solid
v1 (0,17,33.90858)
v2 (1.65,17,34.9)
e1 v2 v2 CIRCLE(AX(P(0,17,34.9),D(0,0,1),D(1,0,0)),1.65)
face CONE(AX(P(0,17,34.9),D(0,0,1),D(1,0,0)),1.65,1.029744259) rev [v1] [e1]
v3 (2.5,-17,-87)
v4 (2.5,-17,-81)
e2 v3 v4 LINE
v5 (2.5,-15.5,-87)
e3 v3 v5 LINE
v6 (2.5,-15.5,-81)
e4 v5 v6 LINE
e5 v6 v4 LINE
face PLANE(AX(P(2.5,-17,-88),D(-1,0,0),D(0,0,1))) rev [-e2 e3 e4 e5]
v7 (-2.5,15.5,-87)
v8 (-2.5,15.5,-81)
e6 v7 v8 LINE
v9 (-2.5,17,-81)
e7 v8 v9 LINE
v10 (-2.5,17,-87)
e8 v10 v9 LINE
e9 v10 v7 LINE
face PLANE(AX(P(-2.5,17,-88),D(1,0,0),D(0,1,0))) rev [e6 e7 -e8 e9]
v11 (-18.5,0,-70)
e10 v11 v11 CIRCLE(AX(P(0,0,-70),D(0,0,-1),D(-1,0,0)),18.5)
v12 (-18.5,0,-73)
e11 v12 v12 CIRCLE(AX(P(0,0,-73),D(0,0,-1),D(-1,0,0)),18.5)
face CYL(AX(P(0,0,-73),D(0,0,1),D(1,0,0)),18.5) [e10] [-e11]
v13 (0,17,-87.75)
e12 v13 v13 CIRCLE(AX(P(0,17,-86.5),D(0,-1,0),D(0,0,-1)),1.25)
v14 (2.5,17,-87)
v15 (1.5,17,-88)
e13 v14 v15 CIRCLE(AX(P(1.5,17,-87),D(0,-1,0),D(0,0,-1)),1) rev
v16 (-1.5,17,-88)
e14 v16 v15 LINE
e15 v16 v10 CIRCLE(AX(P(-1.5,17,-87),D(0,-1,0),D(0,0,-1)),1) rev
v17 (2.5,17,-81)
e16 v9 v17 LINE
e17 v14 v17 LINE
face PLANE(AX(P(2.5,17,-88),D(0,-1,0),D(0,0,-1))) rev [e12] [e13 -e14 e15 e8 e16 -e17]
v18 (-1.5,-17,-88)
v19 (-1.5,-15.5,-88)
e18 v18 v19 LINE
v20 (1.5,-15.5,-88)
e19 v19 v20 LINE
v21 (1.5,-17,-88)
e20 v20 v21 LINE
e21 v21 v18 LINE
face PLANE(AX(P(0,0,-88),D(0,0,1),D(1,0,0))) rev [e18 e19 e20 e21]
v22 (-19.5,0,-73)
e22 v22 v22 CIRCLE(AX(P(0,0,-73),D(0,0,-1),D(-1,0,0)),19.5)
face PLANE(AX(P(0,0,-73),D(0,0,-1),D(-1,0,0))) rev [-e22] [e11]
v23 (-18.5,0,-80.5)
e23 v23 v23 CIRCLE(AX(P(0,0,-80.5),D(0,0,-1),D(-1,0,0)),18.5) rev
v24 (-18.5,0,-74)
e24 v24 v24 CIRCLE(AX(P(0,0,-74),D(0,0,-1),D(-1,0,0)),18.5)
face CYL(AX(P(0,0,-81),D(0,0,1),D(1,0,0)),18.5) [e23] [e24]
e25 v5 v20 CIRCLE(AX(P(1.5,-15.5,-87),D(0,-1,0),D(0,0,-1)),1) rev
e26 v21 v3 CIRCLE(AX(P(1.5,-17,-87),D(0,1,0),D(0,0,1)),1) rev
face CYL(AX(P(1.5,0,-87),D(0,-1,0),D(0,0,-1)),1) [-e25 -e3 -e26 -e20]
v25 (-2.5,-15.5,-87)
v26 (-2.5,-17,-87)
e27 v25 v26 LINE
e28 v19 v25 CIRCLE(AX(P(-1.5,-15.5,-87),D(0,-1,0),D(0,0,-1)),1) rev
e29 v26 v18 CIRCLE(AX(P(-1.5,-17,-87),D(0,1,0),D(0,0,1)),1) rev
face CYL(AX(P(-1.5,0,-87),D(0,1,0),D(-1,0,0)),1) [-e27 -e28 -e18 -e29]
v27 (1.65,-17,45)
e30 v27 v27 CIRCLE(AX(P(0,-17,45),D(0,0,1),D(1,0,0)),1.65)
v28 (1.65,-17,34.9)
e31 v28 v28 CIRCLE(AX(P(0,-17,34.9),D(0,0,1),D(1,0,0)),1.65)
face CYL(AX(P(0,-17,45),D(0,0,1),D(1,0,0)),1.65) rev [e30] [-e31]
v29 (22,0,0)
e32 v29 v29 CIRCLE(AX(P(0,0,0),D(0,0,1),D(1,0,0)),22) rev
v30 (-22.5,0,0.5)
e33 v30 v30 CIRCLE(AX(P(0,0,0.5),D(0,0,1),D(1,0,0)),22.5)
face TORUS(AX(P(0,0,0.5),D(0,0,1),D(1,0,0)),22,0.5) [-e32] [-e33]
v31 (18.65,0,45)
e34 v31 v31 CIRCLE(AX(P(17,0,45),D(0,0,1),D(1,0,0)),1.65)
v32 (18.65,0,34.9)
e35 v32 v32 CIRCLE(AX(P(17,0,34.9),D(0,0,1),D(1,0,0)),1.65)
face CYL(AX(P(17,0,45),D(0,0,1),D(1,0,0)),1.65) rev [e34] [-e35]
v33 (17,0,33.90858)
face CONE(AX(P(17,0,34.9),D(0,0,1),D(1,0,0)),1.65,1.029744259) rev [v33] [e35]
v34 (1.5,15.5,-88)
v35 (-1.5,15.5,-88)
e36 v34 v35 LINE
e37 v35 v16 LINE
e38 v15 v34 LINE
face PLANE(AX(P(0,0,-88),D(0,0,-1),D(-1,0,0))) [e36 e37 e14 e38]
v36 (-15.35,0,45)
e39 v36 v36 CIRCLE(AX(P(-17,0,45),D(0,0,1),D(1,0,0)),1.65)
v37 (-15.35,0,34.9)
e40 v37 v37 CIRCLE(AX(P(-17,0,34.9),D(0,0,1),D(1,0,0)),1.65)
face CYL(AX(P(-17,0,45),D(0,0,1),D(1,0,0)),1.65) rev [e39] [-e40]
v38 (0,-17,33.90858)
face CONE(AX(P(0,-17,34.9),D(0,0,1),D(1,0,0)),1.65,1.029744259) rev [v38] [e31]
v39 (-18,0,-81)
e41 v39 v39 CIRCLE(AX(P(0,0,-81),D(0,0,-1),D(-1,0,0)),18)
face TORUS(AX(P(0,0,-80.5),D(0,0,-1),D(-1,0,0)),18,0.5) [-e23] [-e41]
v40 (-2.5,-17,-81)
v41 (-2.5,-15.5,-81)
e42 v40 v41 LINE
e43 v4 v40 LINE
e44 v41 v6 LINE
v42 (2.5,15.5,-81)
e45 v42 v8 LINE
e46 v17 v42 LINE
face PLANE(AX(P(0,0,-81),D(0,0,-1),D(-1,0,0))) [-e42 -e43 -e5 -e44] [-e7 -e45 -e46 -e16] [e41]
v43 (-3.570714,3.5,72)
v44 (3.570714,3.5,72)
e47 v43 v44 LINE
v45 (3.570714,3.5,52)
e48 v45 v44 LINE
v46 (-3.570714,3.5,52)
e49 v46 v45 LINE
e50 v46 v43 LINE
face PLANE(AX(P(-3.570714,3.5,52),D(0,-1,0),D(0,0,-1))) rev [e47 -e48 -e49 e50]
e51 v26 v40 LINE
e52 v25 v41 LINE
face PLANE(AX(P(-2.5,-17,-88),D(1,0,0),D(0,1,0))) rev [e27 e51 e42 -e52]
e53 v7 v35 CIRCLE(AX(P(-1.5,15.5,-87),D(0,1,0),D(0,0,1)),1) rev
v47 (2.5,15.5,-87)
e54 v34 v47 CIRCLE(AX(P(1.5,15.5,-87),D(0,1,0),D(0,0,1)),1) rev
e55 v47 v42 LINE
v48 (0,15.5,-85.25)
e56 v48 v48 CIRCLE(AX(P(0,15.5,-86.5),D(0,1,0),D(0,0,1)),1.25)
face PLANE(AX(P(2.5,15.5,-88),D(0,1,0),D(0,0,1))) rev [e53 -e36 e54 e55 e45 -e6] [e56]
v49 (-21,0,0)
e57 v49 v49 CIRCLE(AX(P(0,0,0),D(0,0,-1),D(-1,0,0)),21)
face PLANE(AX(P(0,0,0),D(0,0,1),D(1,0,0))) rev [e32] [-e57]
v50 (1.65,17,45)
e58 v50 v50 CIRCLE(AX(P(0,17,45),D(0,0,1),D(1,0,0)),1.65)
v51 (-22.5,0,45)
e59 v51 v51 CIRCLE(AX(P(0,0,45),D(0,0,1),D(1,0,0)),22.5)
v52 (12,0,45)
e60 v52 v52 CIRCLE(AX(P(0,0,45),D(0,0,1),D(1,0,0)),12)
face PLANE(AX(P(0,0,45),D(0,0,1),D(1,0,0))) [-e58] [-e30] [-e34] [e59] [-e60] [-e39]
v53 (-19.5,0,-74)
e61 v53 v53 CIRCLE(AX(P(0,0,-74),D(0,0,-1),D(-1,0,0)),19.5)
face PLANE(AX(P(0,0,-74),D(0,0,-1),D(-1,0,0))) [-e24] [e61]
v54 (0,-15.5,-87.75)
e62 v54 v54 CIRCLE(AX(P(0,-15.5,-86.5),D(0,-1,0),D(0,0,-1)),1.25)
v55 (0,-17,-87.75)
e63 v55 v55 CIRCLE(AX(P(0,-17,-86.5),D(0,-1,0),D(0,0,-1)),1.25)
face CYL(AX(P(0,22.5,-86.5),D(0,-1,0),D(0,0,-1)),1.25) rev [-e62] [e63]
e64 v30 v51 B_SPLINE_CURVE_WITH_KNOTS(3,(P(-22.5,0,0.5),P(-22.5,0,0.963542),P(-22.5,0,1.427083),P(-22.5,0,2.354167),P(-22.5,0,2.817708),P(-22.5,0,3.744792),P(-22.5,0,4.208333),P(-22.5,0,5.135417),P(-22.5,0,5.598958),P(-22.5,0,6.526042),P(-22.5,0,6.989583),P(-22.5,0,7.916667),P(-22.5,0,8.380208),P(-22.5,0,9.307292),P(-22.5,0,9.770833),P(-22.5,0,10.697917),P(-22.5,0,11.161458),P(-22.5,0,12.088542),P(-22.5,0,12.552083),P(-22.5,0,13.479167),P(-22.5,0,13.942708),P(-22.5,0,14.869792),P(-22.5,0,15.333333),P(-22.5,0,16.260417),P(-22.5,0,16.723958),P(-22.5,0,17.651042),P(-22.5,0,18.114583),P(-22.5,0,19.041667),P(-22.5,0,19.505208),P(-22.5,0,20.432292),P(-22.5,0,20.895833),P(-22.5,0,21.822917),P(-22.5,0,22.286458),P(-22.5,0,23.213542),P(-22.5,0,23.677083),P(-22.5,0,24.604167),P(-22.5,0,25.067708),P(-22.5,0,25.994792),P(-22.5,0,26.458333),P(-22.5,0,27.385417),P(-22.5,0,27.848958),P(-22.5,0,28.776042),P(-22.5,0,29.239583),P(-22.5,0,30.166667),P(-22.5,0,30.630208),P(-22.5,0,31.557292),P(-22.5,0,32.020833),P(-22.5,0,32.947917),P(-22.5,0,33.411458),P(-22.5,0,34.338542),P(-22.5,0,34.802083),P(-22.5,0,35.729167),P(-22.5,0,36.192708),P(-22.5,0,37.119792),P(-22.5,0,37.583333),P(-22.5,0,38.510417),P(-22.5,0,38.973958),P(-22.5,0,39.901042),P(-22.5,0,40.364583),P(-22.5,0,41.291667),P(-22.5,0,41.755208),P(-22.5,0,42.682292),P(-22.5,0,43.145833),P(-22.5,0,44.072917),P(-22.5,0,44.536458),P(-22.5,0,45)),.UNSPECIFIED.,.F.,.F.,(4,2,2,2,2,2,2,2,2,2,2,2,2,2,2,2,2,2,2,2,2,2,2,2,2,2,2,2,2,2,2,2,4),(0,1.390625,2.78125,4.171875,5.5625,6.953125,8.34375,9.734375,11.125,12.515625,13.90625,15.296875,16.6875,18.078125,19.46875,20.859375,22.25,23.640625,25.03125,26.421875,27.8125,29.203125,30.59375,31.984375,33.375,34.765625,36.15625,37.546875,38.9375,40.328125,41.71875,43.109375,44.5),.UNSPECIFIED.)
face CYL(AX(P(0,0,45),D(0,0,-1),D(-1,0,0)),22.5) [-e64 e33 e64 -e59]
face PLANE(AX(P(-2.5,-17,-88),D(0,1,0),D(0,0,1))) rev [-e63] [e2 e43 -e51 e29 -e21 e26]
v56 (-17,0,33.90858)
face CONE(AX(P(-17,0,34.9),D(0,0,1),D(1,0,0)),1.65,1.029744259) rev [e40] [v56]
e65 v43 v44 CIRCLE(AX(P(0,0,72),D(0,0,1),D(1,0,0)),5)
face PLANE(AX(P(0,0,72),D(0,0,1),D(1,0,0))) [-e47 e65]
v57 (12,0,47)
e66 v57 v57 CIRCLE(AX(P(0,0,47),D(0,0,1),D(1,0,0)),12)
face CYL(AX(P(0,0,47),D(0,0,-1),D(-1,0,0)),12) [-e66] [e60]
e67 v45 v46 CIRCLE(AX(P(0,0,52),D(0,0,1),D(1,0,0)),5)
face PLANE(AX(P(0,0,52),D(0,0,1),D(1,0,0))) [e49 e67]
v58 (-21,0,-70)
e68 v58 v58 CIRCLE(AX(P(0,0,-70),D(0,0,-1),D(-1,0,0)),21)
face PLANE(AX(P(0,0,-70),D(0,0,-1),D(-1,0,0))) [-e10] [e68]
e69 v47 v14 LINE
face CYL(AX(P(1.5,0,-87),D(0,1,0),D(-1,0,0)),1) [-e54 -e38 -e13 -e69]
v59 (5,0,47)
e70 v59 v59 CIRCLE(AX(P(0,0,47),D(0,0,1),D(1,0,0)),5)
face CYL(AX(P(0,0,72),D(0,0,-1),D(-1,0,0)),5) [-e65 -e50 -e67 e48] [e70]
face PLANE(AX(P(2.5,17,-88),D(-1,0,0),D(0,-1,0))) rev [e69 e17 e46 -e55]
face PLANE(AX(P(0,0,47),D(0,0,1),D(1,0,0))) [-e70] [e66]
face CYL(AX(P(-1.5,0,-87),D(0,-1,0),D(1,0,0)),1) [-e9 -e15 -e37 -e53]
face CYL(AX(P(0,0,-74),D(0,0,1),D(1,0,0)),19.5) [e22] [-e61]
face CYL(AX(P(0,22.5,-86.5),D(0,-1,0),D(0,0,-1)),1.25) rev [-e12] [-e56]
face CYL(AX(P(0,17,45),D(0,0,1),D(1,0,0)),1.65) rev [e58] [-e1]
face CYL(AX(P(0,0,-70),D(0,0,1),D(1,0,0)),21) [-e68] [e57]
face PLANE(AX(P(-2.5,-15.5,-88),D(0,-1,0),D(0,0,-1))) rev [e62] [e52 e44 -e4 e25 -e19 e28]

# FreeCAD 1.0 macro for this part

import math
import FreeCAD as App
import Part
import Sketcher


def edges_at(feature, points):
    """Names of the edges that pass closest to the given points."""
    edges = feature.Shape.Edges
    near = lambda p: min(range(len(edges)), key=lambda i: edges[i].distToShape(Part.Vertex(*p))[0])
    return sorted({f"Edge{near(p) + 1}" for p in points})

doc = App.newDocument("Part")
body = doc.addObject("PartDesign::Body", "Body")

# Sketch on XY plane
sketch1 = doc.addObject("Sketcher::SketchObject", "Sketch")
body.addObject(sketch1)
sketch1.AttachmentSupport = (doc.XY_Plane, [""])
sketch1.MapMode = "FlatFace"
sketch1.addGeometry(Part.Circle(App.Vector(0, 0, 0), App.Vector(0, 0, 1), 22), False)
sketch1.addConstraint([
    Sketcher.Constraint("Coincident", 0, 3, -1, 1),
    Sketcher.Constraint("Diameter", 0, 45.0),
])
pad1 = doc.addObject("PartDesign::Pad", "Pad")
body.addObject(pad1)
pad1.Profile = sketch1
pad1.Length = 45

# Sketch on XY plane
sketch2 = doc.addObject("Sketcher::SketchObject", "Sketch001")
body.addObject(sketch2)
sketch2.AttachmentSupport = (doc.XY_Plane, [""])
sketch2.MapMode = "FlatFace"
sketch2.AttachmentOffset = App.Placement(App.Vector(0, 0, 45), App.Rotation())
sketch2.addGeometry([
    Part.Circle(App.Vector(0, 17, 0), App.Vector(0, 0, 1), 1.6),
    Part.Circle(App.Vector(17, 0, 0), App.Vector(0, 0, 1), 1.6),
    Part.Circle(App.Vector(0, -17, 0), App.Vector(0, 0, 1), 1.6),
    Part.Circle(App.Vector(-17, 0, 0), App.Vector(0, 0, 1), 1.6),
], False)
sketch2.addConstraint([
    Sketcher.Constraint("Equal", 0, 1),
    Sketcher.Constraint("Equal", 1, 2),
    Sketcher.Constraint("Equal", 2, 3),
    Sketcher.Constraint("Symmetric", 0, 3, 2, 3, -1, 1),
    Sketcher.Constraint("Symmetric", 1, 3, 3, 3, -1, 1),
    Sketcher.Constraint("PointOnObject", 0, 3, -2),
    Sketcher.Constraint("PointOnObject", 1, 3, -1),
    Sketcher.Constraint("Diameter", 0, 3.3),
    Sketcher.Constraint("DistanceY", -1, 1, 0, 3, 17.0),
    Sketcher.Constraint("DistanceX", -1, 1, 1, 3, 17.0),
])
doc.recompute()
hole = doc.addObject("PartDesign::Hole", "Hole")
body.addObject(hole)
hole.Profile = sketch2
hole.ThreadType = "None"
hole.Diameter = 3.3
hole.DepthType = "Dimension"
hole.Depth = 10.1
hole.DrillPoint = "Angled"
hole.DrillPointAngle = 118

# Sketch on XY plane
sketch3 = doc.addObject("Sketcher::SketchObject", "Sketch002")
body.addObject(sketch3)
sketch3.AttachmentSupport = (doc.XY_Plane, [""])
sketch3.MapMode = "FlatFace"
sketch3.AttachmentOffset = App.Placement(App.Vector(0, 0, 45), App.Rotation())
sketch3.addGeometry(Part.Circle(App.Vector(0, 0, 0), App.Vector(0, 0, 1), 12), False)
sketch3.addConstraint([
    Sketcher.Constraint("Coincident", 0, 3, -1, 1),
    Sketcher.Constraint("Diameter", 0, 24.0),
])
pad2 = doc.addObject("PartDesign::Pad", "Pad001")
body.addObject(pad2)
pad2.Profile = sketch3
pad2.Length = 2

# Sketch on XY plane
sketch4 = doc.addObject("Sketcher::SketchObject", "Sketch003")
body.addObject(sketch4)
sketch4.AttachmentSupport = (doc.XY_Plane, [""])
sketch4.MapMode = "FlatFace"
sketch4.AttachmentOffset = App.Placement(App.Vector(0, 0, 47), App.Rotation())
sketch4.addGeometry(Part.Circle(App.Vector(0, 0, 0), App.Vector(0, 0, 1), 5), False)
sketch4.addConstraint([
    Sketcher.Constraint("Coincident", 0, 3, -1, 1),
    Sketcher.Constraint("Diameter", 0, 10.0),
])
pad3 = doc.addObject("PartDesign::Pad", "Pad002")
body.addObject(pad3)
pad3.Profile = sketch4
pad3.Length = 25

# Sketch on XY plane
sketch5 = doc.addObject("Sketcher::SketchObject", "Sketch004")
body.addObject(sketch5)
sketch5.AttachmentSupport = (doc.XY_Plane, [""])
sketch5.MapMode = "FlatFace"
sketch5.AttachmentOffset = App.Placement(App.Vector(0, 0, 52), App.Rotation())
sketch5.addGeometry([
    Part.LineSegment(App.Vector(-3.6, 3.5, 0), App.Vector(3.6, 3.5, 0)),
    Part.ArcOfCircle(Part.Circle(App.Vector(0, 0, 0), App.Vector(0, 0, 1), 5), math.radians(44), math.radians(136)),
], False)
sketch5.addConstraint([
    Sketcher.Constraint("Coincident", 0, 1, 1, 2),
    Sketcher.Constraint("Coincident", 1, 1, 0, 2),
    Sketcher.Constraint("Horizontal", 0),
    Sketcher.Constraint("Coincident", 1, 3, -1, 1),
    Sketcher.Constraint("Radius", 1, 5.0),
    Sketcher.Constraint("DistanceY", -1, 1, 0, 1, 3.5),
])
pocket1 = doc.addObject("PartDesign::Pocket", "Pocket")
body.addObject(pocket1)
pocket1.Profile = sketch5
pocket1.Length = 20
pocket1.Reversed = True

# Sketch on XY plane
sketch6 = doc.addObject("Sketcher::SketchObject", "Sketch005")
body.addObject(sketch6)
sketch6.AttachmentSupport = (doc.XY_Plane, [""])
sketch6.MapMode = "FlatFace"
sketch6.addGeometry(Part.Circle(App.Vector(0, 0, 0), App.Vector(0, 0, 1), 21), False)
sketch6.addConstraint([
    Sketcher.Constraint("Coincident", 0, 3, -1, 1),
    Sketcher.Constraint("Diameter", 0, 42.0),
])
pad4 = doc.addObject("PartDesign::Pad", "Pad003")
body.addObject(pad4)
pad4.Profile = sketch6
pad4.Length = 70
pad4.Reversed = True

# Sketch on XY plane
sketch7 = doc.addObject("Sketcher::SketchObject", "Sketch006")
body.addObject(sketch7)
sketch7.AttachmentSupport = (doc.XY_Plane, [""])
sketch7.MapMode = "FlatFace"
sketch7.AttachmentOffset = App.Placement(App.Vector(0, 0, -70), App.Rotation())
sketch7.addGeometry(Part.Circle(App.Vector(0, 0, 0), App.Vector(0, 0, 1), 18), False)
sketch7.addConstraint([
    Sketcher.Constraint("Coincident", 0, 3, -1, 1),
    Sketcher.Constraint("Diameter", 0, 37.0),
])
pad5 = doc.addObject("PartDesign::Pad", "Pad004")
body.addObject(pad5)
pad5.Profile = sketch7
pad5.Length = 3
pad5.Reversed = True

# Sketch on XY plane
sketch8 = doc.addObject("Sketcher::SketchObject", "Sketch007")
body.addObject(sketch8)
sketch8.AttachmentSupport = (doc.XY_Plane, [""])
sketch8.MapMode = "FlatFace"
sketch8.AttachmentOffset = App.Placement(App.Vector(0, 0, -73), App.Rotation())
sketch8.addGeometry(Part.Circle(App.Vector(0, 0, 0), App.Vector(0, 0, 1), 20), False)
sketch8.addConstraint([
    Sketcher.Constraint("Coincident", 0, 3, -1, 1),
    Sketcher.Constraint("Diameter", 0, 39.0),
])
pad6 = doc.addObject("PartDesign::Pad", "Pad005")
body.addObject(pad6)
pad6.Profile = sketch8
pad6.Length = 1
pad6.Reversed = True

# Sketch on XY plane
sketch9 = doc.addObject("Sketcher::SketchObject", "Sketch008")
body.addObject(sketch9)
sketch9.AttachmentSupport = (doc.XY_Plane, [""])
sketch9.MapMode = "FlatFace"
sketch9.AttachmentOffset = App.Placement(App.Vector(0, 0, -74), App.Rotation())
sketch9.addGeometry(Part.Circle(App.Vector(0, 0, 0), App.Vector(0, 0, 1), 18), False)
sketch9.addConstraint([
    Sketcher.Constraint("Coincident", 0, 3, -1, 1),
    Sketcher.Constraint("Diameter", 0, 37.0),
])
pad7 = doc.addObject("PartDesign::Pad", "Pad006")
body.addObject(pad7)
pad7.Profile = sketch9
pad7.Length = 7
pad7.Reversed = True

# Sketch on XY plane
sketch10 = doc.addObject("Sketcher::SketchObject", "Sketch009")
body.addObject(sketch10)
sketch10.AttachmentSupport = (doc.XY_Plane, [""])
sketch10.MapMode = "FlatFace"
sketch10.AttachmentOffset = App.Placement(App.Vector(0, 0, -81), App.Rotation())
sketch10.addGeometry([
    Part.LineSegment(App.Vector(2.5, -15.5, 0), App.Vector(2.5, -17, 0)),  # 0
    Part.LineSegment(App.Vector(2.5, -17, 0), App.Vector(-2.5, -17, 0)),  # 1
    Part.LineSegment(App.Vector(-2.5, -17, 0), App.Vector(-2.5, -15.5, 0)),  # 2
    Part.LineSegment(App.Vector(-2.5, -15.5, 0), App.Vector(2.5, -15.5, 0)),  # 3
    Part.LineSegment(App.Vector(2.5, 17, 0), App.Vector(2.5, 15.5, 0)),  # 4
    Part.LineSegment(App.Vector(2.5, 15.5, 0), App.Vector(-2.5, 15.5, 0)),  # 5
    Part.LineSegment(App.Vector(-2.5, 15.5, 0), App.Vector(-2.5, 17, 0)),  # 6
    Part.LineSegment(App.Vector(-2.5, 17, 0), App.Vector(2.5, 17, 0)),  # 7
], False)
sketch10.addConstraint([
    Sketcher.Constraint("Coincident", 0, 2, 1, 1),
    Sketcher.Constraint("Coincident", 1, 2, 2, 1),
    Sketcher.Constraint("Coincident", 2, 2, 3, 1),
    Sketcher.Constraint("Coincident", 3, 2, 0, 1),
    Sketcher.Constraint("Coincident", 4, 2, 5, 1),
    Sketcher.Constraint("Coincident", 5, 2, 6, 1),
    Sketcher.Constraint("Coincident", 6, 2, 7, 1),
    Sketcher.Constraint("Coincident", 7, 2, 4, 1),
    Sketcher.Constraint("Vertical", 0),
    Sketcher.Constraint("Horizontal", 1),
    Sketcher.Constraint("Vertical", 2),
    Sketcher.Constraint("Horizontal", 3),
    Sketcher.Constraint("Vertical", 4),
    Sketcher.Constraint("Horizontal", 5),
    Sketcher.Constraint("Vertical", 6),
    Sketcher.Constraint("Horizontal", 7),
    Sketcher.Constraint("Symmetric", 2, 2, 4, 2, -1, 1),
    Sketcher.Constraint("Symmetric", 0, 2, 6, 2, -1, 1),
    Sketcher.Constraint("Vertical", 3, 2, 4, 2),
    Sketcher.Constraint("DistanceX", 1, 2, 1, 1, 5.0),
    Sketcher.Constraint("DistanceY", 0, 2, 0, 1, 1.5),
    Sketcher.Constraint("DistanceY", 0, 2, -1, 1, 17.0),
])
pad8 = doc.addObject("PartDesign::Pad", "Pad007")
body.addObject(pad8)
pad8.Profile = sketch10
pad8.Length = 7
pad8.Reversed = True

# Sketch on XZ plane
sketch11 = doc.addObject("Sketcher::SketchObject", "Sketch010")
body.addObject(sketch11)
sketch11.AttachmentSupport = (doc.XZ_Plane, [""])
sketch11.MapMode = "FlatFace"
sketch11.AttachmentOffset = App.Placement(App.Vector(0, 0, 17), App.Rotation())
sketch11.addGeometry(Part.Circle(App.Vector(0, -86.5, 0), App.Vector(0, 0, 1), 1.2), False)
sketch11.addConstraint([
    Sketcher.Constraint("PointOnObject", 0, 3, -2),
    Sketcher.Constraint("Diameter", 0, 2.5),
    Sketcher.Constraint("DistanceY", 0, 3, -1, 1, 86.5),
])
pocket2 = doc.addObject("PartDesign::Pocket", "Pocket001")
body.addObject(pocket2)
pocket2.Profile = sketch11
pocket2.Type = "ThroughAll"
doc.recompute()

fillet = doc.addObject("PartDesign::Fillet", "Fillet")
body.addObject(fillet)
fillet.Base = (pocket2, edges_at(pocket2, [
    (2.5, 16.25, -88),
    (-2.5, 16.25, -88),
    (-2.5, -16.25, -88),
    (2.5, -16.25, -88),
]))
fillet.Radius = 1
doc.recompute()

fillet2 = doc.addObject("PartDesign::Fillet", "Fillet001")
body.addObject(fillet2)
fillet2.Base = (fillet, edges_at(fillet, [(18.5, 0, -81)]))
fillet2.Radius = 0.5
doc.recompute()

fillet3 = doc.addObject("PartDesign::Fillet", "Fillet002")
body.addObject(fillet3)
fillet3.Base = (fillet2, edges_at(fillet2, [(22.5, 0, 0)]))
fillet3.Radius = 0.5

doc.recompute()
